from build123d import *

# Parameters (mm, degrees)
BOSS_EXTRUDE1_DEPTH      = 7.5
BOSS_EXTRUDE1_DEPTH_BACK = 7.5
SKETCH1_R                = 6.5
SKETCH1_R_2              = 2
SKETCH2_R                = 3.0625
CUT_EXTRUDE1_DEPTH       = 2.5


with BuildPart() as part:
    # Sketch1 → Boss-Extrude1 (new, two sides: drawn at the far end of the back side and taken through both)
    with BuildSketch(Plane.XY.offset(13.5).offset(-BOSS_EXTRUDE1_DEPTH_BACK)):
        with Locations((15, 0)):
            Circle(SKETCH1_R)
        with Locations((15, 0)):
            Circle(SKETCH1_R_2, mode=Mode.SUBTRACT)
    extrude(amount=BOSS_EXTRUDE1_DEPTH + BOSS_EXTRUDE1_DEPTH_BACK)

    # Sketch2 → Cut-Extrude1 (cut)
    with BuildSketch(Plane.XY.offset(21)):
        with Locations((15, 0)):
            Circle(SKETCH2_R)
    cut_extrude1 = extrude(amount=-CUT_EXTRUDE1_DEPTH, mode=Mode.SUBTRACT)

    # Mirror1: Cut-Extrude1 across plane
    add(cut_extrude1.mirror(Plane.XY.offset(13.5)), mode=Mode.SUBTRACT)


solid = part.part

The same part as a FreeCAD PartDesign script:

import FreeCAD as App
import Part
import Sketcher

V = App.Vector

doc = App.newDocument("Part")
body = doc.addObject("PartDesign::Body", "Body")

sketch1 = body.newObject("Sketcher::SketchObject", "Sketch")
sketch1.AttachmentSupport = (doc.getObject("XY_Plane"), [""])
sketch1.MapMode = "FlatFace"
sketch1.AttachmentOffset = App.Placement(V(0, 0, 13.5), App.Rotation())
sketch1.addGeometry([
    Part.Circle(V(15, 0, 0), V(0, 0, 1), 6.5),
    Part.Circle(V(15, 0, 0), V(0, 0, 1), 2),
], False)
sketch1.addConstraint([
    Sketcher.Constraint("Coincident", 1, 3, 0, 3),
    Sketcher.Constraint("PointOnObject", 0, 3, -1),
    Sketcher.Constraint("Diameter", 0, 13.0),
    Sketcher.Constraint("Diameter", 1, 4.0),
    Sketcher.Constraint("DistanceX", -1, 1, 0, 3, 15.0),
])
pad1 = body.newObject("PartDesign::Pad", "Pad")
pad1.Profile = sketch1
pad1.Type = "TwoLengths"
pad1.Length = 7.5
pad1.Length2 = 7.5

sketch2 = body.newObject("Sketcher::SketchObject", "Sketch001")
sketch2.AttachmentSupport = (doc.getObject("XY_Plane"), [""])
sketch2.MapMode = "FlatFace"
sketch2.AttachmentOffset = App.Placement(V(0, 0, 21), App.Rotation())
sketch2.addGeometry(Part.Circle(V(15, 0, 0), V(0, 0, 1), 3.1), False)
sketch2.addConstraint([
    Sketcher.Constraint("PointOnObject", 0, 3, -1),
    Sketcher.Constraint("Diameter", 0, 6.125),
    Sketcher.Constraint("DistanceX", -1, 1, 0, 3, 15.0),
])
pocket1 = body.newObject("PartDesign::Pocket", "Pocket")
pocket1.Profile = sketch2
pocket1.Length = 2.5
doc.recompute()

datumplane = body.newObject("PartDesign::Plane", "DatumPlane")
datumplane.AttachmentSupport = (doc.getObject("XY_Plane"), [""])
datumplane.MapMode = "FlatFace"
datumplane.AttachmentOffset = App.Placement(V(0, 0, 13.5), App.Rotation())
mirrored = body.newObject("PartDesign::Mirrored", "Mirrored")
mirrored.Originals = [pocket1]
mirrored.MirrorPlane = (datumplane, [""])
body.Tip = mirrored

doc.recompute()
